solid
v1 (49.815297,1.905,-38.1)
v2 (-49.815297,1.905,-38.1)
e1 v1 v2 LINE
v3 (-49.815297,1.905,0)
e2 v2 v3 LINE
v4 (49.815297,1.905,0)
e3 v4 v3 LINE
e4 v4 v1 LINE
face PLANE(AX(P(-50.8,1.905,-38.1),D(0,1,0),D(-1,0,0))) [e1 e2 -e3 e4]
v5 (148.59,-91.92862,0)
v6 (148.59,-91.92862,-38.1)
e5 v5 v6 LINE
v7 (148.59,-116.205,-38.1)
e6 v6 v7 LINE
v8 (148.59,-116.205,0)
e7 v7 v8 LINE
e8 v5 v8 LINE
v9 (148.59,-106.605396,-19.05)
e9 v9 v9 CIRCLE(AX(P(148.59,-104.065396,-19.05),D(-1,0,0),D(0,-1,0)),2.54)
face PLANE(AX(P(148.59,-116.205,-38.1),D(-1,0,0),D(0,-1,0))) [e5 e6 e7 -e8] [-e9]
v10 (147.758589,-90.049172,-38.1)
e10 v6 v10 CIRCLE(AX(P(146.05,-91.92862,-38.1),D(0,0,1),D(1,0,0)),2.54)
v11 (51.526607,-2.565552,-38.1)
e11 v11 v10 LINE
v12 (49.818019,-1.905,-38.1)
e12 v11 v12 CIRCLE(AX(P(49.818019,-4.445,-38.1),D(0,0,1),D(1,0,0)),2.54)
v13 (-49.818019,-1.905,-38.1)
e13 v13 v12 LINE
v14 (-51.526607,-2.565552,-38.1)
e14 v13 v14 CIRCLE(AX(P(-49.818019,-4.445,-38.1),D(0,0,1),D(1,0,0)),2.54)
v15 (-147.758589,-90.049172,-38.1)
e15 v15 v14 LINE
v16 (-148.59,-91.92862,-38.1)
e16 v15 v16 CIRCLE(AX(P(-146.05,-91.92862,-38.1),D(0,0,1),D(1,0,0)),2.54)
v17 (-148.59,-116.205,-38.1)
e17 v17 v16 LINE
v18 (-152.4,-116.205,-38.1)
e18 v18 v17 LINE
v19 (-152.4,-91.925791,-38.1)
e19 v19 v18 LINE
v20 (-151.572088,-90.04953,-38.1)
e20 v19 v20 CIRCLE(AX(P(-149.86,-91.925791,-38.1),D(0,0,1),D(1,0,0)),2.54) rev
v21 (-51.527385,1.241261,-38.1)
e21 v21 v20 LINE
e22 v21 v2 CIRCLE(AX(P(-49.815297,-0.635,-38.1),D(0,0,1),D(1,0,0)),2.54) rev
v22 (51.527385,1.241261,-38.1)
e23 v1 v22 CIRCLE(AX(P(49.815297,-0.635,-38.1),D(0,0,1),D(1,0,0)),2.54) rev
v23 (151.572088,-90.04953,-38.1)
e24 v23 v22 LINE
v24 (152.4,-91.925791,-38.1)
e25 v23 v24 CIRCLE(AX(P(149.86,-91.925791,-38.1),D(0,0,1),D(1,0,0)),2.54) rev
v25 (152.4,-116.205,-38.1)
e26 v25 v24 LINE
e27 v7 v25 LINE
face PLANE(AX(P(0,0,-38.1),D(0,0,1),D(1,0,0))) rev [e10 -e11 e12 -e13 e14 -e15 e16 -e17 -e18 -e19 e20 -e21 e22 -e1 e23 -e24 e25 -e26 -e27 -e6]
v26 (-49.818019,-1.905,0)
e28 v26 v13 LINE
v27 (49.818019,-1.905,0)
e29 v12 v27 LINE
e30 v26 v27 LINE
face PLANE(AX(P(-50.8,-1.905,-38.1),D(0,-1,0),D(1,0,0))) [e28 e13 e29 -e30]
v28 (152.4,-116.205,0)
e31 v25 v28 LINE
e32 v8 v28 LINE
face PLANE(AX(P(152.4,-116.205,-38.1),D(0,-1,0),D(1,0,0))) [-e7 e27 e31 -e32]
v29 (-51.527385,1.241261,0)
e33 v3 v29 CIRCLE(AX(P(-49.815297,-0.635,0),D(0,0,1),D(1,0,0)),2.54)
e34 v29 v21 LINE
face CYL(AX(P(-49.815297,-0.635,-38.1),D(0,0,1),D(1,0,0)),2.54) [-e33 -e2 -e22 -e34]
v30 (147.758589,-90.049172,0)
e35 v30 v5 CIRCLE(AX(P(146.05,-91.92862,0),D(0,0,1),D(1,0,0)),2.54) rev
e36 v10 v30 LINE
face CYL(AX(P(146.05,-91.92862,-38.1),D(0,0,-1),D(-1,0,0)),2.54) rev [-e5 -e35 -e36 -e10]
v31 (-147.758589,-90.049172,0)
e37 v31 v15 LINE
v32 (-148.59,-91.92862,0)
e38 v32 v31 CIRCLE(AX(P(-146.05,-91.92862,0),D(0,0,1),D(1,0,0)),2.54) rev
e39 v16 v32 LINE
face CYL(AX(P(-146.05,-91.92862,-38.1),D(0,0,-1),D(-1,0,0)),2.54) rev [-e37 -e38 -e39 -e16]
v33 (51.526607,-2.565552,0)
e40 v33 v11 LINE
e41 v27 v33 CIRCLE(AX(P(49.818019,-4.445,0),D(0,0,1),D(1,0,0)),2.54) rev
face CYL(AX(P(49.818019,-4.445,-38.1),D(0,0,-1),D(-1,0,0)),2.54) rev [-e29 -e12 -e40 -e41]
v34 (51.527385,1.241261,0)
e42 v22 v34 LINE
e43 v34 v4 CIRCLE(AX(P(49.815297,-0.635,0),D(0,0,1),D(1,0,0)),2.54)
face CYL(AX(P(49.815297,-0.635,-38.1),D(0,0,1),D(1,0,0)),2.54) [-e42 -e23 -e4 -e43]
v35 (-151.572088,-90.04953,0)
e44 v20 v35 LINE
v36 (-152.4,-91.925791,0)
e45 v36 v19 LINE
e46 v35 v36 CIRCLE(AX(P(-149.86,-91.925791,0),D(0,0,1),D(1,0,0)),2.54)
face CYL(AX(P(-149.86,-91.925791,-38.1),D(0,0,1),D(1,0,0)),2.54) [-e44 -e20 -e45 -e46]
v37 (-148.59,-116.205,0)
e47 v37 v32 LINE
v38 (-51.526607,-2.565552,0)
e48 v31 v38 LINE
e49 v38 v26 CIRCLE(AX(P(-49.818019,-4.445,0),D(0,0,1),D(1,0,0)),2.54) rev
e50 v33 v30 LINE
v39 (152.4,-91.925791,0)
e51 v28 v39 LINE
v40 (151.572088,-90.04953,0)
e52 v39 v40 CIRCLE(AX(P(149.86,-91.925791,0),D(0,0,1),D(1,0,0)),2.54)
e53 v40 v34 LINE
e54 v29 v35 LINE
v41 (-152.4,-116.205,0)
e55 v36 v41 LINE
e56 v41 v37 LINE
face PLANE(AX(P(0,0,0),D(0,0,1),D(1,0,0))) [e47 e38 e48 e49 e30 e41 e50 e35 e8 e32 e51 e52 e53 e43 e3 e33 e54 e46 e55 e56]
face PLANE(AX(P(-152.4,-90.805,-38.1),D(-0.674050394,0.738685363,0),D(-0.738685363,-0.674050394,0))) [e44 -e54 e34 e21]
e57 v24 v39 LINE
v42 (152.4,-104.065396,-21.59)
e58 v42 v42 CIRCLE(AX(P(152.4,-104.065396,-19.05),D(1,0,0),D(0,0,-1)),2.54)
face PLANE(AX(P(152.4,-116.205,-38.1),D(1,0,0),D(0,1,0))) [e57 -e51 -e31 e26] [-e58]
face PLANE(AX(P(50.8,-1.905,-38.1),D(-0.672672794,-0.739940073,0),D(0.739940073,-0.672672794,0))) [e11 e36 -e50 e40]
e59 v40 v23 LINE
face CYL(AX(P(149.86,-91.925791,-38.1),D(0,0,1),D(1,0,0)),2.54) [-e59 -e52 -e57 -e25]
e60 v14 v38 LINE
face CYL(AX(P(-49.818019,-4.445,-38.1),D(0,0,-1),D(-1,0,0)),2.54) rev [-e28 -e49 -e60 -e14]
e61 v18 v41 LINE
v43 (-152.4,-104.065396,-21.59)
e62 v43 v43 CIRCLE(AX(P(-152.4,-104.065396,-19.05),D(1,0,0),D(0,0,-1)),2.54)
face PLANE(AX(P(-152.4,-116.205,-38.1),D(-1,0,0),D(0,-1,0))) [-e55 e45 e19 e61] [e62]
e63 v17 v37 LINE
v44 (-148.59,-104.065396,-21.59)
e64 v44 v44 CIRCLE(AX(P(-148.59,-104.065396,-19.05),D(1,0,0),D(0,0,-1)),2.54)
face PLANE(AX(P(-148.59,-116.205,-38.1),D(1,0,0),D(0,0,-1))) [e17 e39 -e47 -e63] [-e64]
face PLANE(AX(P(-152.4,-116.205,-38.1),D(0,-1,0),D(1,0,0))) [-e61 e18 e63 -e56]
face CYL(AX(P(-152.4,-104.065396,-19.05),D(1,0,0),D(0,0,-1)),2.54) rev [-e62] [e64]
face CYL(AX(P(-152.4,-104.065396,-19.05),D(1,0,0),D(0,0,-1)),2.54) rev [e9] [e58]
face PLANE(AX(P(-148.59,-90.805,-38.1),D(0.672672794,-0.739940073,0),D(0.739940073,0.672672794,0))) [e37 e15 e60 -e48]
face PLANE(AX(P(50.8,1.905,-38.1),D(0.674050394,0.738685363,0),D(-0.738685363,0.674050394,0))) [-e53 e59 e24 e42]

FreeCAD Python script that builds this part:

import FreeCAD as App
import Part
import Sketcher
Q = App.Units.Quantity


def edges_at(feature, points):
    """Names of the edges that pass closest to the given points."""
    edges = feature.Shape.Edges
    near = lambda p: min(range(len(edges)), key=lambda i: edges[i].distToShape(Part.Vertex(*p))[0])
    return sorted({f"Edge{near(p) + 1}" for p in points})


def add_polygon(sketch, points):
    """Adds a closed chain of lines whose ends are joined by coincident constraints."""
    first, n = sketch.GeometryCount, len(points)
    for a, b in zip(points, points[1:] + points[:1]):
        sketch.addGeometry(Part.LineSegment(App.Vector(*a, 0), App.Vector(*b, 0)), False)
    for i in range(n):
        sketch.addConstraint(Sketcher.Constraint("Coincident", first + i, 2, first + (i + 1) % n, 1))

doc = App.newDocument("Part")
body = doc.addObject("PartDesign::Body", "Body")

sketch1 = doc.addObject("Sketcher::SketchObject", "Sketch")
body.addObject(sketch1)
sketch1.AttachmentSupport = (doc.XY_Plane, [""])
sketch1.MapMode = "FlatFace"
add_polygon(sketch1, [(-50.8, -1.9), (50.8, -1.9), (148.6, -90.8), (148.6, -116.2), (152.4, -116.2), (152.4, -90.8), (50.8, 1.9), (-50.8, 1.9), (-152.4, -90.8), (-152.4, -116.2), (-148.6, -116.2), (-148.6, -90.8)])
sketch1.addConstraint(Sketcher.Constraint("Horizontal", 0))
sketch1.addConstraint(Sketcher.Constraint("Vertical", 2))
sketch1.addConstraint(Sketcher.Constraint("Horizontal", 3))
sketch1.addConstraint(Sketcher.Constraint("Vertical", 4))
sketch1.addConstraint(Sketcher.Constraint("Horizontal", 6))
sketch1.addConstraint(Sketcher.Constraint("Vertical", 8))
sketch1.addConstraint(Sketcher.Constraint("Horizontal", 9))
sketch1.addConstraint(Sketcher.Constraint("Vertical", 10))
sketch1.addConstraint(Sketcher.Constraint("Symmetric", 0, 2, 6, 2, -1, 1))
sketch1.addConstraint(Sketcher.Constraint("Symmetric", 4, 2, 7, 2, -2))
sketch1.addConstraint(Sketcher.Constraint("Symmetric", 2, 2, 9, 2, -2))
sketch1.addConstraint(Sketcher.Constraint("Horizontal", 1, 2, 4, 2))
sketch1.addConstraint(Sketcher.Constraint("Horizontal", 7, 2, 10, 2))
sketch1.addConstraint(Sketcher.Constraint("Vertical", 0, 2, 5, 2))
sketch1.addConstraint(Sketcher.Constraint("Vertical", 6, 2, 11, 2))
sketch1.addConstraint(Sketcher.Constraint("DistanceX", 0, 1, 0, 2, Q("4 in")))
sketch1.addConstraint(Sketcher.Constraint("DistanceY", 2, 2, 2, 1, Q("1 in")))
sketch1.addConstraint(Sketcher.Constraint("DistanceX", -1, 1, 3, 2, Q("6 in")))
sketch1.addConstraint(Sketcher.Constraint("DistanceX", 3, 1, 3, 2, Q("0.15 in")))
sketch1.addConstraint(Sketcher.Constraint("DistanceY", 1, 2, 0, 2, Q("3.5 in")))
sketch1.addConstraint(Sketcher.Constraint("DistanceY", 0, 2, 5, 2, Q("0.15 in")))
pad1 = doc.addObject("PartDesign::Pad", "Pad")
body.addObject(pad1)
pad1.Profile = sketch1
pad1.Length = Q("1.5 in")
pad1.Reversed = True
doc.recompute()

fillet = doc.addObject("PartDesign::Fillet", "Fillet")
body.addObject(fillet)
fillet.Base = (pad1, edges_at(pad1, [
    (152.4, -90.805, -19.05),
    (148.59, -90.805, -19.05),
    (50.8, -1.905, -19.05),
    (-50.8, -1.905, -19.05),
    (-148.59, -90.805, -19.05),
    (-152.4, -90.805, -19.05),
    (-50.8, 1.905, -19.05),
    (50.8, 1.905, -19.05),
]))
fillet.Radius = Q("0.1 in")

sketch2 = doc.addObject("Sketcher::SketchObject", "Sketch001")
body.addObject(sketch2)
sketch2.AttachmentSupport = (doc.YZ_Plane, [""])
sketch2.MapMode = "FlatFace"
sketch2.AttachmentOffset = App.Placement(App.Vector(0, 0, 6 * 25.4), App.Rotation())
sketch2.addGeometry(Part.Circle(App.Vector(-104.1, -19.1, 0), App.Vector(0, 0, 1), 2.5), False)
sketch2.addConstraint(Sketcher.Constraint("Diameter", 0, Q("0.2 in")))
sketch2.addConstraint(Sketcher.Constraint("DistanceY", 0, 3, -1, 1, Q("0.75 in")))
sketch2.addConstraint(Sketcher.Constraint("DistanceX", 0, 3, -1, 1, Q("104.065396 mm")))
pocket1 = doc.addObject("PartDesign::Pocket", "Pocket")
body.addObject(pocket1)
pocket1.Profile = sketch2
pocket1.Type = "ThroughAll"

doc.recompute()
